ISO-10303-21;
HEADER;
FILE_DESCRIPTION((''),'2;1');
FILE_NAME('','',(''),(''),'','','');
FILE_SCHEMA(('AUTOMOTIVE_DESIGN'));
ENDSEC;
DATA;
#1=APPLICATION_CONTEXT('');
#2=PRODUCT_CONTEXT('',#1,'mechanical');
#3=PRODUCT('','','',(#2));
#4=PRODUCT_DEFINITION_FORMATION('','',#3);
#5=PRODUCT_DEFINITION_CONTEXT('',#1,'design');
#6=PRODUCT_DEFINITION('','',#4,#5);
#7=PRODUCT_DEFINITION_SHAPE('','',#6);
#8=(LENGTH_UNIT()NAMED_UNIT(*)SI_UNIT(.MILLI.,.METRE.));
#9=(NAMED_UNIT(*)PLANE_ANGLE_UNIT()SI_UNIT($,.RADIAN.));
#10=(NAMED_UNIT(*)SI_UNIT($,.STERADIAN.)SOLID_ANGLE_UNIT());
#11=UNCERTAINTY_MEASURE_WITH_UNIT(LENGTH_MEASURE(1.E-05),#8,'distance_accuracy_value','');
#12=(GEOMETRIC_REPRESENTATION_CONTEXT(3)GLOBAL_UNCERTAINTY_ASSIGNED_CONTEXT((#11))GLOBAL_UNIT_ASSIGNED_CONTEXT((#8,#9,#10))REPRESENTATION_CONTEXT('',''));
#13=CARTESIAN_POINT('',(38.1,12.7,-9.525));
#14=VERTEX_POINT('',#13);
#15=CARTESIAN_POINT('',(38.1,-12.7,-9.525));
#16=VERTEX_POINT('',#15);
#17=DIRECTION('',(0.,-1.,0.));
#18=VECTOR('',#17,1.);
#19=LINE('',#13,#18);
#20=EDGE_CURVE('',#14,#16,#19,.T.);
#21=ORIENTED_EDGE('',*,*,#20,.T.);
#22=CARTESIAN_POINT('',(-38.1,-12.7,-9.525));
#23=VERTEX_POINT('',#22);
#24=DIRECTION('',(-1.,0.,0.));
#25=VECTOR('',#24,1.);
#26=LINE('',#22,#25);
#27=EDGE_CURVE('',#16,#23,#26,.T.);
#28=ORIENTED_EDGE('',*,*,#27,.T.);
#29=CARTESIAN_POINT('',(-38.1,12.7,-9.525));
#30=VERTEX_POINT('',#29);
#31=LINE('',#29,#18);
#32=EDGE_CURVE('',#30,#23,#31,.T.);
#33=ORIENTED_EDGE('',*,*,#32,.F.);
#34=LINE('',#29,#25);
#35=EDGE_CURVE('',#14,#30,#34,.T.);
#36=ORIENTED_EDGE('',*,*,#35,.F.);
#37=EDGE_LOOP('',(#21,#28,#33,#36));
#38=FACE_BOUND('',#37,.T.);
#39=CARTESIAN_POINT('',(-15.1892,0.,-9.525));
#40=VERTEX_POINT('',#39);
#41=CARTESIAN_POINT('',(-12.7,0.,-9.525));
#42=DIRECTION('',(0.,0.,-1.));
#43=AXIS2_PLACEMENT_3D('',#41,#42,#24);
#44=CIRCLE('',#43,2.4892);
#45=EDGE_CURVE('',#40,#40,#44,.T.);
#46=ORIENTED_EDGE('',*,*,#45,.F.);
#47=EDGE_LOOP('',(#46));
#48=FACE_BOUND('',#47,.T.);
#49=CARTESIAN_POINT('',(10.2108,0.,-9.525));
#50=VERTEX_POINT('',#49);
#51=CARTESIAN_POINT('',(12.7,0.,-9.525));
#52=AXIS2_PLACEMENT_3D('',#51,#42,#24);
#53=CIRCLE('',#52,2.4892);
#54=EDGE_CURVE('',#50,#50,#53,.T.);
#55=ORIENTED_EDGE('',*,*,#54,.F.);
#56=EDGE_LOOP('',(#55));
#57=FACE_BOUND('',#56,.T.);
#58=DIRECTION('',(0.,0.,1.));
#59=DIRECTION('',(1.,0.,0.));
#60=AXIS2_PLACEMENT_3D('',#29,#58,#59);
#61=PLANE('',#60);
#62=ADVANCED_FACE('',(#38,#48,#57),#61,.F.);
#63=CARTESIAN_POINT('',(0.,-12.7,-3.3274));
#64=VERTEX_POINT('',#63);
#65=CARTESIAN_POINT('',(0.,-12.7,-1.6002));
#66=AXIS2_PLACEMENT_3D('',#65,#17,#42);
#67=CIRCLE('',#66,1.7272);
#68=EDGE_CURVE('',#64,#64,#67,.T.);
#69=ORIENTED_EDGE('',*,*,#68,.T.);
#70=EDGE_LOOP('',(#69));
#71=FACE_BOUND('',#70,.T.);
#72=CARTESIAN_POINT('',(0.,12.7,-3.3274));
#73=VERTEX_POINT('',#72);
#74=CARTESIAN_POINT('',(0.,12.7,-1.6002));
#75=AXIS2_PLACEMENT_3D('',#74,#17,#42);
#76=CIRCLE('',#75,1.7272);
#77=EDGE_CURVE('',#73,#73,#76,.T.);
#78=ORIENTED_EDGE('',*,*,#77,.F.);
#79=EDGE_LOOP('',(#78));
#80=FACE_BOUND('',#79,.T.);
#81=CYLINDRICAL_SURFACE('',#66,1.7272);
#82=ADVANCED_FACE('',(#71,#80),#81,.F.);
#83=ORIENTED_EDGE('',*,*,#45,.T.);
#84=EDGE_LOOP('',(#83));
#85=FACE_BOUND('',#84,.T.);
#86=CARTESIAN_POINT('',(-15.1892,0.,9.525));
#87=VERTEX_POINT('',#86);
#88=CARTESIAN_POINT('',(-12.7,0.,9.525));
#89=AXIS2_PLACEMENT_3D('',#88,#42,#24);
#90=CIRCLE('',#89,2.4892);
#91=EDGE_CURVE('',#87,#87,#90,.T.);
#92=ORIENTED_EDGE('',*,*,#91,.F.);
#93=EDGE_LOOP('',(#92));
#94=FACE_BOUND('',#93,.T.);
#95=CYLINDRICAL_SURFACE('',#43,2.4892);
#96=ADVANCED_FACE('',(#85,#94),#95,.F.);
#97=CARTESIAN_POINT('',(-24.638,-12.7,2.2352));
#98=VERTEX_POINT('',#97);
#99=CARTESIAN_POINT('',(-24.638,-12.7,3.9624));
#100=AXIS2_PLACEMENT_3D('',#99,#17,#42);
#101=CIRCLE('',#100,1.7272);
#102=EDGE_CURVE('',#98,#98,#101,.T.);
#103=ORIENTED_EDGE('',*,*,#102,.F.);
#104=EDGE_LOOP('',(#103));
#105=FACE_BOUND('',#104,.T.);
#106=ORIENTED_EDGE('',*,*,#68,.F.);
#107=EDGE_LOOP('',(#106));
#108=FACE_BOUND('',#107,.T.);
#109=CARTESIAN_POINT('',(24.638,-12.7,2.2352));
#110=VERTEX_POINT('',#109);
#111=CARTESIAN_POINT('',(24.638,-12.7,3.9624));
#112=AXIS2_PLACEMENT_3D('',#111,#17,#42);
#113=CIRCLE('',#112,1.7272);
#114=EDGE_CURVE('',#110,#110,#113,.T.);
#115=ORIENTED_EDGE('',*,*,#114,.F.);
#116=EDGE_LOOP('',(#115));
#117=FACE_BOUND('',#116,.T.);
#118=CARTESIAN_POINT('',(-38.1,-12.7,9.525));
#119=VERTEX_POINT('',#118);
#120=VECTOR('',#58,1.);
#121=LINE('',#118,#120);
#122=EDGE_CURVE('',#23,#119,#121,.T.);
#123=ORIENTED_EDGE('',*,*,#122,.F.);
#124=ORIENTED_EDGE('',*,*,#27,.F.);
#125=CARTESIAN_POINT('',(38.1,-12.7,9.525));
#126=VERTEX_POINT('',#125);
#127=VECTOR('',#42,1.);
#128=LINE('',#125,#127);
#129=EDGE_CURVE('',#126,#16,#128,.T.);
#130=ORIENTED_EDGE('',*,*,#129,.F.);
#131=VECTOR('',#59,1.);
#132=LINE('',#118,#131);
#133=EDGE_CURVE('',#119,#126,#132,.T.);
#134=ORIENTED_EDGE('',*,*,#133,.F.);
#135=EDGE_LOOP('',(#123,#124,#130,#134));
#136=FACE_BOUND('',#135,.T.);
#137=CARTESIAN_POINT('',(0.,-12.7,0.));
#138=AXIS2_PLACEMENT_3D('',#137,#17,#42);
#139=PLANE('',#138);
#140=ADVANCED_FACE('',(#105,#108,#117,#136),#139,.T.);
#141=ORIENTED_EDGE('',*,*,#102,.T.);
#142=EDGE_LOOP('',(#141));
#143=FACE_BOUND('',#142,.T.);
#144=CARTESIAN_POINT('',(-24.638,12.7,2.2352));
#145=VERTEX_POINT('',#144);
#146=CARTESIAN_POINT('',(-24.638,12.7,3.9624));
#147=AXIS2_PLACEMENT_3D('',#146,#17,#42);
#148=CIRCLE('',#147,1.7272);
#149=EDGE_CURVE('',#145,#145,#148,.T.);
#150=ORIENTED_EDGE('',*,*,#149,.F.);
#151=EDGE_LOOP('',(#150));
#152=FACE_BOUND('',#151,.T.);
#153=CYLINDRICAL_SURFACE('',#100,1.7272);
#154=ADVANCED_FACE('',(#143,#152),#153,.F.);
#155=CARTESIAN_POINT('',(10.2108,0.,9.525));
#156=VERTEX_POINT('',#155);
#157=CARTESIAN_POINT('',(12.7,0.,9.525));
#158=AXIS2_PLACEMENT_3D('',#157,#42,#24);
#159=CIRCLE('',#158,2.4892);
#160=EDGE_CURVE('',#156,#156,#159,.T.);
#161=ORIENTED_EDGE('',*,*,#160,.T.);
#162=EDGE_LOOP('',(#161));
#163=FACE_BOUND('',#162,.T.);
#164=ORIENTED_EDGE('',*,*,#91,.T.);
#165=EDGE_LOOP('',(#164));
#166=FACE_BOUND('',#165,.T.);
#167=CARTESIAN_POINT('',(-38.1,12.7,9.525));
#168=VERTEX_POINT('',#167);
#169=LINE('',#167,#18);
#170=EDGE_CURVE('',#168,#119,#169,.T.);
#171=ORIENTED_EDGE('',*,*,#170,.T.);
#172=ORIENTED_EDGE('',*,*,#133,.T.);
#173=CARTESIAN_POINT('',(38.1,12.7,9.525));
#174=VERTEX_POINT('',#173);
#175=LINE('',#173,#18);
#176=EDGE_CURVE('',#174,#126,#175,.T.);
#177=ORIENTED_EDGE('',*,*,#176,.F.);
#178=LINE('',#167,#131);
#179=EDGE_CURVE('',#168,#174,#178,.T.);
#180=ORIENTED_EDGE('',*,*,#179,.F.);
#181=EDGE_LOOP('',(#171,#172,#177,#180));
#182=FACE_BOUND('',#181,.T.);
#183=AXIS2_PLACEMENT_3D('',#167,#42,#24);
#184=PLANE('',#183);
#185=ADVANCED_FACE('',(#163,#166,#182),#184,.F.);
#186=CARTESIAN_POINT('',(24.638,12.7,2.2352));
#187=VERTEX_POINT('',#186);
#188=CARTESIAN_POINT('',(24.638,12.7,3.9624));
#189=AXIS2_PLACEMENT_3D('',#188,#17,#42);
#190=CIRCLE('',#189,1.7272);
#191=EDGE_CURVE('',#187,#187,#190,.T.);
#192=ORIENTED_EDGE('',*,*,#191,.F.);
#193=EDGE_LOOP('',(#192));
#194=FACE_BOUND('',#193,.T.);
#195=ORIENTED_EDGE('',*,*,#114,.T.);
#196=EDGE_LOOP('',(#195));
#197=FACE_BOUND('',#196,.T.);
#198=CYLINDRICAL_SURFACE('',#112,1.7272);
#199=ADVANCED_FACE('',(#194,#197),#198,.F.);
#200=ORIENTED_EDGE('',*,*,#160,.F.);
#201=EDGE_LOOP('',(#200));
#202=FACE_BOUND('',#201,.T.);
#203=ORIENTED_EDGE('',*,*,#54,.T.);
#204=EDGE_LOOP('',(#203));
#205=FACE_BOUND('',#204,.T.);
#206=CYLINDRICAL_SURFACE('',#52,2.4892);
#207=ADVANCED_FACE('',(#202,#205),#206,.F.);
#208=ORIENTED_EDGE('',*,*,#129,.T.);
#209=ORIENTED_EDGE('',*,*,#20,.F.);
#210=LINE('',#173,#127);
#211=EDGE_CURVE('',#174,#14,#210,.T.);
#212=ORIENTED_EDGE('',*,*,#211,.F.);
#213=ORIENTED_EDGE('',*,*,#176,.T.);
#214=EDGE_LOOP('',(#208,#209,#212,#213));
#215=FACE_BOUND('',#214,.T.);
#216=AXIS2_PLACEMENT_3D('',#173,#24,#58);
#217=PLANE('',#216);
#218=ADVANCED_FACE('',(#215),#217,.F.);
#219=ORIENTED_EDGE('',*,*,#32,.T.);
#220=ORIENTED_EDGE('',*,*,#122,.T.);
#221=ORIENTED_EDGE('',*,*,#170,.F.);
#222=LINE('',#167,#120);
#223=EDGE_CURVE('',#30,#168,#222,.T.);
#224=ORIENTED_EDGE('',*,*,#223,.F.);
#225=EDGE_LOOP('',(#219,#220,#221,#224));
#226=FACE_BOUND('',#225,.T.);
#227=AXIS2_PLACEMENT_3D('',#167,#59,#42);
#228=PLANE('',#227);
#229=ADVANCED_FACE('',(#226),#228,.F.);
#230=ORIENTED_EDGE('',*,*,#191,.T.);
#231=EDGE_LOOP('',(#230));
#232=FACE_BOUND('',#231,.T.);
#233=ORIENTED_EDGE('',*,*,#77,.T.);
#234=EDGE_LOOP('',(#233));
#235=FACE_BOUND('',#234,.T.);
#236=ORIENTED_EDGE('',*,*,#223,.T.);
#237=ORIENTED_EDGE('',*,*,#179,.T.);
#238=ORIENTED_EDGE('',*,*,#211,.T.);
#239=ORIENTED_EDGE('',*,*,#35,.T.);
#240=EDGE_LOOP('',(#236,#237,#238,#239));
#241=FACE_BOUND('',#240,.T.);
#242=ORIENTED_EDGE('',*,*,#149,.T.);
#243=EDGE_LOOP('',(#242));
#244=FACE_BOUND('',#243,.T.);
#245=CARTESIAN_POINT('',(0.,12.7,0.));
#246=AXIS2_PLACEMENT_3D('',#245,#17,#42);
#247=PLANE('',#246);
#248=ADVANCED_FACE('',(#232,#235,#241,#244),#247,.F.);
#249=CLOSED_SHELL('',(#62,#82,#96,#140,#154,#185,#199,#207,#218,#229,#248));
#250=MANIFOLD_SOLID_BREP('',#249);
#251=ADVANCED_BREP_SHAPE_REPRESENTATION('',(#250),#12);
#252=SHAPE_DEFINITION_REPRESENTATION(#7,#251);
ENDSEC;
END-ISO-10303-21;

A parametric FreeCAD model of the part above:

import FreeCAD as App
import Part
import Sketcher

V = App.Vector
Q = App.Units.Quantity


def add_polygon(sketch, points):
    """Adds a closed chain of lines whose ends are joined by coincident constraints."""
    first, n = sketch.GeometryCount, len(points)
    for a, b in zip(points, points[1:] + points[:1]):
        sketch.addGeometry(Part.LineSegment(App.Vector(*a, 0), App.Vector(*b, 0)), False)
    for i in range(n):
        sketch.addConstraint(Sketcher.Constraint("Coincident", first + i, 2, first + (i + 1) % n, 1))

doc = App.newDocument("Part")
body = doc.addObject("PartDesign::Body", "Body")

sketch1 = body.newObject("Sketcher::SketchObject", "Sketch")
sketch1.AttachmentSupport = (doc.getObject("XZ_Plane"), [""])
sketch1.MapMode = "FlatFace"
add_polygon(sketch1, [(-38, -10), (-38, 10), (38, 10), (38, -10)])
sketch1.addConstraint([
    Sketcher.Constraint("Vertical", 0),
    Sketcher.Constraint("Horizontal", 1),
    Sketcher.Constraint("Vertical", 2),
    Sketcher.Constraint("Horizontal", 3),
    Sketcher.Constraint("Symmetric", 0, 2, 2, 2, -1, 1),
    Sketcher.Constraint("DistanceX", 1, 1, 1, 2, Q("3 in")),
    Sketcher.Constraint("DistanceY", 0, 1, 0, 2, Q("0.75 in")),
])
pad1 = body.newObject("PartDesign::Pad", "Pad")
pad1.Profile = sketch1
pad1.Length = Q("1 in")
pad1.Midplane = True

sketch2 = body.newObject("Sketcher::SketchObject", "Sketch001")
sketch2.AttachmentSupport = (doc.getObject("XZ_Plane"), [""])
sketch2.MapMode = "FlatFace"
sketch2.AttachmentOffset = App.Placement(V(0, 0, 0.5 * 25.4), App.Rotation())
sketch2.addGeometry([
    Part.Circle(V(-24.6, 4, 0), V(0, 0, 1), 1.7),
    Part.Circle(V(0, -1.6, 0), V(0, 0, 1), 1.7),
    Part.Circle(V(24.6, 4, 0), V(0, 0, 1), 1.7),
], False)
sketch2.addConstraint([
    Sketcher.Constraint("Equal", 0, 1),
    Sketcher.Constraint("Equal", 1, 2),
    Sketcher.Constraint("Symmetric", 0, 3, 2, 3, -2),
    Sketcher.Constraint("PointOnObject", 1, 3, -2),
    Sketcher.Constraint("Diameter", 0, Q("0.136 in")),
    Sketcher.Constraint("DistanceX", 0, 3, -1, 1, Q("0.97 in")),
    Sketcher.Constraint("DistanceY", -1, 1, 0, 3, Q("0.156 in")),
    Sketcher.Constraint("DistanceY", 1, 3, -1, 1, Q("0.063 in")),
])
doc.recompute()
hole = body.newObject("PartDesign::Hole", "Hole")
hole.Profile = sketch2
hole.ThreadType = "None"
hole.Diameter = Q("0.136 in")
hole.DepthType = "ThroughAll"

sketch3 = body.newObject("Sketcher::SketchObject", "Sketch002")
sketch3.AttachmentSupport = (doc.getObject("XY_Plane"), [""])
sketch3.MapMode = "FlatFace"
sketch3.AttachmentOffset = App.Placement(V(0, 0, -0.375 * 25.4), App.Rotation())
sketch3.addGeometry([
    Part.Circle(V(12.7, 0, 0), V(0, 0, 1), 2.5),
    Part.Circle(V(-12.7, 0, 0), V(0, 0, 1), 2.5),
], False)
sketch3.addConstraint([
    Sketcher.Constraint("Equal", 0, 1),
    Sketcher.Constraint("Symmetric", 0, 3, 1, 3, -1, 1),
    Sketcher.Constraint("PointOnObject", 0, 3, -1),
    Sketcher.Constraint("Diameter", 0, Q("0.196 in")),
    Sketcher.Constraint("DistanceX", 1, 3, 0, 3, Q("1 in")),
])
doc.recompute()
hole2 = body.newObject("PartDesign::Hole", "Hole001")
hole2.Profile = sketch3
hole2.ThreadType = "None"
hole2.Diameter = Q("0.196 in")
hole2.DepthType = "ThroughAll"
hole2.Reversed = True

doc.recompute()
